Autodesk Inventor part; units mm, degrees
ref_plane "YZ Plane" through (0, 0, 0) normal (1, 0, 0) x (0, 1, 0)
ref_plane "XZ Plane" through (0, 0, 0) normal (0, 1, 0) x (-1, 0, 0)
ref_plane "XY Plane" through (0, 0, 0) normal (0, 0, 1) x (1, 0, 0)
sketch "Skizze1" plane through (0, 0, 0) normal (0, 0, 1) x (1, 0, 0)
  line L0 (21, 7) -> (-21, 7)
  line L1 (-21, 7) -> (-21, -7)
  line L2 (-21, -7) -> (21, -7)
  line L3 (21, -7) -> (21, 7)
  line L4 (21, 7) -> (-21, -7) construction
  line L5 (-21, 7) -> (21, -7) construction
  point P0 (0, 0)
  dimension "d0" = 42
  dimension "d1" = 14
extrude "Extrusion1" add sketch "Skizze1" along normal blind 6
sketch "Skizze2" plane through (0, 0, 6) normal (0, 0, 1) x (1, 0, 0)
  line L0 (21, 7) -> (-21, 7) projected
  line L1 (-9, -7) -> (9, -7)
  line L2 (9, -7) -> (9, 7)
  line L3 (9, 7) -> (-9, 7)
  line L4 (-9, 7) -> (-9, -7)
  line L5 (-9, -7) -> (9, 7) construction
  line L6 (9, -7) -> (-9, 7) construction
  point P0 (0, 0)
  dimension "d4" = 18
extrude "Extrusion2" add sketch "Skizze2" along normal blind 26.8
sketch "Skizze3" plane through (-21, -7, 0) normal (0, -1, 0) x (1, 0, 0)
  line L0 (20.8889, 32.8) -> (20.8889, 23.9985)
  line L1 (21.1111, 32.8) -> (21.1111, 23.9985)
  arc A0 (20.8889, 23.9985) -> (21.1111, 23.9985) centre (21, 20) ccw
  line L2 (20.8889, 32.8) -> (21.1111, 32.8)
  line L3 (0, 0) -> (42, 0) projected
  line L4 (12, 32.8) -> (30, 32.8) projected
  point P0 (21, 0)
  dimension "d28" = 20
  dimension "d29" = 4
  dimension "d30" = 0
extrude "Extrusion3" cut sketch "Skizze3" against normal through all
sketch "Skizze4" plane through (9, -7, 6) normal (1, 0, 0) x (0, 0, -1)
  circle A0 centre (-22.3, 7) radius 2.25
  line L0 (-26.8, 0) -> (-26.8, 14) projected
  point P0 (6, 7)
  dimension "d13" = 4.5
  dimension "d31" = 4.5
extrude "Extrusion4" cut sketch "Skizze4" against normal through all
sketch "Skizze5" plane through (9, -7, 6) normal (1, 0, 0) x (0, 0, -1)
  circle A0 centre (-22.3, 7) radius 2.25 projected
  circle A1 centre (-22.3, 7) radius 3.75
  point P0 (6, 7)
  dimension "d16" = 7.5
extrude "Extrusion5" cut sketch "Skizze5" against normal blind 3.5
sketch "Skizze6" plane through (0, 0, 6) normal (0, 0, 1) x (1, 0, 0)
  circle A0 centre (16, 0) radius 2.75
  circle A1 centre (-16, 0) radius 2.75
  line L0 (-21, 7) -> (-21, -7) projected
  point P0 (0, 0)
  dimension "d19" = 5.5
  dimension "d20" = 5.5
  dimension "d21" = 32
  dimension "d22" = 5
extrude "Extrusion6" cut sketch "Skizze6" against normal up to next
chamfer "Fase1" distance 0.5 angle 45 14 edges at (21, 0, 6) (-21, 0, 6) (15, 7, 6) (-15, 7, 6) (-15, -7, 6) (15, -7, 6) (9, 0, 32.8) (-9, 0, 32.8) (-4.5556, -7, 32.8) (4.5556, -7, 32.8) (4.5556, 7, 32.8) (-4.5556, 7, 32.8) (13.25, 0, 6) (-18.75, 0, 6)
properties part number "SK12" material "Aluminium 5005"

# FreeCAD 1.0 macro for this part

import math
import FreeCAD as App
import Part
import Sketcher

V = App.Vector
Q = App.Units.Quantity


def edges_at(feature, points):
    """Names of the edges that pass closest to the given points."""
    edges = feature.Shape.Edges
    near = lambda p: min(range(len(edges)), key=lambda i: edges[i].distToShape(Part.Vertex(*p))[0])
    return sorted({f"Edge{near(p) + 1}" for p in points})

doc = App.newDocument("Part")
body = doc.addObject("PartDesign::Body", "Body")

sketch1 = body.newObject("Sketcher::SketchObject", "Sketch")
sketch1.AttachmentSupport = (doc.getObject("XY_Plane"), [""])
sketch1.MapMode = "FlatFace"
sketch1.addGeometry([
    Part.LineSegment(V(21, -7, 0), V(21, 7, 0)),
    Part.LineSegment(V(21, 7, 0), V(-21, 7, 0)),
    Part.LineSegment(V(-21, 7, 0), V(-21, -7, 0)),
    Part.LineSegment(V(-21, -7, 0), V(21, -7, 0)),
], False)
sketch1.addConstraint([
    Sketcher.Constraint("Coincident", 0, 2, 1, 1),
    Sketcher.Constraint("Coincident", 1, 2, 2, 1),
    Sketcher.Constraint("Coincident", 2, 2, 3, 1),
    Sketcher.Constraint("Coincident", 3, 2, 0, 1),
    Sketcher.Constraint("Vertical", 0),
    Sketcher.Constraint("Horizontal", 1),
    Sketcher.Constraint("Vertical", 2),
    Sketcher.Constraint("Horizontal", 3),
    Sketcher.Constraint("Symmetric", 0, 2, 2, 2, -1, 1),
    Sketcher.Constraint("DistanceX", 1, 2, 1, 1, Q("42 mm")),
    Sketcher.Constraint("DistanceY", 0, 1, 0, 2, Q("14 mm")),
])
pad1 = body.newObject("PartDesign::Pad", "Pad")
pad1.Profile = sketch1
pad1.Length = 6

sketch2 = body.newObject("Sketcher::SketchObject", "Sketch001")
sketch2.AttachmentSupport = (doc.getObject("XY_Plane"), [""])
sketch2.MapMode = "FlatFace"
sketch2.AttachmentOffset = App.Placement(V(0, 0, 6), App.Rotation())
sketch2.addGeometry([
    Part.LineSegment(V(9, -7, 0), V(9, 7, 0)),
    Part.LineSegment(V(9, 7, 0), V(-9, 7, 0)),
    Part.LineSegment(V(-9, 7, 0), V(-9, -7, 0)),
    Part.LineSegment(V(-9, -7, 0), V(9, -7, 0)),
], False)
sketch2.addConstraint([
    Sketcher.Constraint("Coincident", 0, 2, 1, 1),
    Sketcher.Constraint("Coincident", 1, 2, 2, 1),
    Sketcher.Constraint("Coincident", 2, 2, 3, 1),
    Sketcher.Constraint("Coincident", 3, 2, 0, 1),
    Sketcher.Constraint("Vertical", 0),
    Sketcher.Constraint("Horizontal", 1),
    Sketcher.Constraint("Vertical", 2),
    Sketcher.Constraint("Horizontal", 3),
    Sketcher.Constraint("Symmetric", 0, 2, 2, 2, -1, 1),
    Sketcher.Constraint("DistanceX", 1, 2, 1, 1, Q("18 mm")),
    Sketcher.Constraint("DistanceY", 0, 1, 0, 2, Q("14 mm")),
])
pad2 = body.newObject("PartDesign::Pad", "Pad001")
pad2.Profile = sketch2
pad2.Length = 26.8

sketch3 = body.newObject("Sketcher::SketchObject", "Sketch002")
sketch3.AttachmentSupport = (doc.getObject("XZ_Plane"), [""])
sketch3.MapMode = "FlatFace"
sketch3.AttachmentOffset = App.Placement(V(0, 0, 7), App.Rotation())
sketch3.addGeometry([
    Part.LineSegment(V(0.11, 32.8, 0), V(-0.11, 32.8, 0)),
    Part.LineSegment(V(-0.11, 32.8, 0), V(-0.11, 24, 0)),
    Part.ArcOfCircle(Part.Circle(V(0, 20, 0), V(0, 0, 1), 4), math.radians(92), math.radians(448)),
    Part.LineSegment(V(0.11, 24, 0), V(0.11, 32.8, 0)),
], False)
sketch3.addConstraint([
    Sketcher.Constraint("Coincident", 0, 2, 1, 1),
    Sketcher.Constraint("Coincident", 1, 2, 2, 1),
    Sketcher.Constraint("Coincident", 2, 2, 3, 1),
    Sketcher.Constraint("Coincident", 3, 2, 0, 1),
    Sketcher.Constraint("Horizontal", 0),
    Sketcher.Constraint("Vertical", 1),
    Sketcher.Constraint("Vertical", 3),
    Sketcher.Constraint("Symmetric", 1, 2, 2, 2, -2),
    Sketcher.Constraint("Radius", 2, Q("4 mm")),
    Sketcher.Constraint("DistanceY", -1, 1, 2, 3, Q("20 mm")),
    Sketcher.Constraint("DistanceY", -1, 1, 0, 2, Q("32.8 mm")),
    Sketcher.Constraint("DistanceX", 0, 2, 0, 1, Q("0.2222 mm")),
])
pocket1 = body.newObject("PartDesign::Pocket", "Pocket")
pocket1.Profile = sketch3
pocket1.Type = "ThroughAll"

sketch4 = body.newObject("Sketcher::SketchObject", "Sketch003")
sketch4.AttachmentSupport = (doc.getObject("YZ_Plane"), [""])
sketch4.MapMode = "FlatFace"
sketch4.AttachmentOffset = App.Placement(V(0, 0, 9), App.Rotation())
sketch4.addGeometry(Part.Circle(V(0, 28.3, 0), V(0, 0, 1), 2.2), False)
sketch4.addConstraint([
    Sketcher.Constraint("PointOnObject", 0, 3, -2),
    Sketcher.Constraint("Diameter", 0, Q("4.5 mm")),
    Sketcher.Constraint("DistanceY", -1, 1, 0, 3, Q("28.3 mm")),
])
pocket2 = body.newObject("PartDesign::Pocket", "Pocket001")
pocket2.Profile = sketch4
pocket2.Type = "ThroughAll"

sketch5 = body.newObject("Sketcher::SketchObject", "Sketch004")
sketch5.AttachmentSupport = (doc.getObject("YZ_Plane"), [""])
sketch5.MapMode = "FlatFace"
sketch5.AttachmentOffset = App.Placement(V(0, 0, 9), App.Rotation())
sketch5.addGeometry([
    Part.Circle(V(0, 28.3, 0), V(0, 0, 1), 3.8),
    Part.Circle(V(0, 28.3, 0), V(0, 0, 1), 2.2),
], False)
sketch5.addConstraint([
    Sketcher.Constraint("Coincident", 1, 3, 0, 3),
    Sketcher.Constraint("PointOnObject", 0, 3, -2),
    Sketcher.Constraint("Diameter", 0, Q("7.5 mm")),
    Sketcher.Constraint("Diameter", 1, Q("4.5 mm")),
    Sketcher.Constraint("DistanceY", -1, 1, 0, 3, Q("28.3 mm")),
])
pocket3 = body.newObject("PartDesign::Pocket", "Pocket002")
pocket3.Profile = sketch5
pocket3.Length = 3.5

sketch6 = body.newObject("Sketcher::SketchObject", "Sketch005")
sketch6.AttachmentSupport = (doc.getObject("XY_Plane"), [""])
sketch6.MapMode = "FlatFace"
sketch6.AttachmentOffset = App.Placement(V(0, 0, 6), App.Rotation())
sketch6.addGeometry([
    Part.Circle(V(16, 0, 0), V(0, 0, 1), 2.8),
    Part.Circle(V(-16, 0, 0), V(0, 0, 1), 2.8),
], False)
sketch6.addConstraint([
    Sketcher.Constraint("Equal", 0, 1),
    Sketcher.Constraint("Symmetric", 0, 3, 1, 3, -1, 1),
    Sketcher.Constraint("PointOnObject", 0, 3, -1),
    Sketcher.Constraint("Diameter", 0, Q("5.5 mm")),
    Sketcher.Constraint("DistanceX", 1, 3, 0, 3, Q("32 mm")),
])
pocket4 = body.newObject("PartDesign::Pocket", "Pocket003")
pocket4.Profile = sketch6
pocket4.Type = "UpToFirst"
doc.recompute()

chamfer = body.newObject("PartDesign::Chamfer", "Chamfer")
chamfer.Base = (pocket4, edges_at(pocket4, [
    (21, 0, 6),
    (-21, 0, 6),
    (15, 7, 6),
    (-15, 7, 6),
    (-15, -7, 6),
    (15, -7, 6),
    (9, 0, 32.8),
    (-9, 0, 32.8),
    (-4.556, -7, 32.8),
    (4.556, -7, 32.8),
    (4.556, 7, 32.8),
    (-4.556, 7, 32.8),
    (13.25, 0, 6),
    (-18.75, 0, 6),
]))
chamfer.Size = 0.5

doc.recompute()
